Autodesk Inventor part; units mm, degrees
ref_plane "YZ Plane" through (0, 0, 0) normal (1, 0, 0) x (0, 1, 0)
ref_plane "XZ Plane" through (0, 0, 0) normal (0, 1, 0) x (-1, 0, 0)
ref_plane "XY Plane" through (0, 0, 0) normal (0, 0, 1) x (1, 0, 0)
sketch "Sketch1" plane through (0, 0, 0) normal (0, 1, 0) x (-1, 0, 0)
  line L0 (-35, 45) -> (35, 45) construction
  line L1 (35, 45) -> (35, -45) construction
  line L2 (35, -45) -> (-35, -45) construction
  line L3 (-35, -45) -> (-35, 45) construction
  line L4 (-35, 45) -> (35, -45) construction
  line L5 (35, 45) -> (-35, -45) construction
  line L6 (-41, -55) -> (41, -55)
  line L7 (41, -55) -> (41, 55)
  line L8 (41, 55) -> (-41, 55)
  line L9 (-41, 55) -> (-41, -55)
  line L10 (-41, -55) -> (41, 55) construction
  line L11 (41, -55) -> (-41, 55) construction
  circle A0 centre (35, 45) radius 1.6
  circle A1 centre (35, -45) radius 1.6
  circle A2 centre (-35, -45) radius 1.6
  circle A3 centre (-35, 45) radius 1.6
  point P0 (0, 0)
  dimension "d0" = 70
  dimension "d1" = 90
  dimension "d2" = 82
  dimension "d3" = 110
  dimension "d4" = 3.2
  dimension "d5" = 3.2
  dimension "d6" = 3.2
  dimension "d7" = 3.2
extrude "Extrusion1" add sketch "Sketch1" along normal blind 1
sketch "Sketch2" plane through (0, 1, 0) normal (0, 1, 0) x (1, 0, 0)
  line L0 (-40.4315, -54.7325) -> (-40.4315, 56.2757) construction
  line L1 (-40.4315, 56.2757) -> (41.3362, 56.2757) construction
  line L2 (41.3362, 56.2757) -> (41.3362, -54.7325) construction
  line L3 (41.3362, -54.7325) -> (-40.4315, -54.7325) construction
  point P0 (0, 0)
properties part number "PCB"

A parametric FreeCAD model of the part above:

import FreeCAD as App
import Part
import Sketcher


def add_polygon(sketch, points):
    """Adds a closed chain of lines whose ends are joined by coincident constraints."""
    first, n = sketch.GeometryCount, len(points)
    for a, b in zip(points, points[1:] + points[:1]):
        sketch.addGeometry(Part.LineSegment(App.Vector(*a, 0), App.Vector(*b, 0)), False)
    for i in range(n):
        sketch.addConstraint(Sketcher.Constraint("Coincident", first + i, 2, first + (i + 1) % n, 1))

doc = App.newDocument("Part")
params = doc.addObject("Spreadsheet::Sheet", "Params")
for row, (alias, value) in enumerate([
    ("sketch1_diameter", "3.2 mm"),
    ("sketch1_width", "82 mm"),
    ("sketch1_height", "110 mm"),
    ("pad1_length", "1 mm"),
], start=1):
    params.set(f"A{row}", alias)
    params.set(f"B{row}", "=" + value)
    params.setAlias(f"B{row}", alias)

body = doc.addObject("PartDesign::Body", "Body")

sketch1 = doc.addObject("Sketcher::SketchObject", "Sketch")
body.addObject(sketch1)
sketch1.AttachmentSupport = (doc.XZ_Plane, [""])
sketch1.MapMode = "FlatFace"
add_polygon(sketch1, [(41, 55), (41, -55), (-41, -55), (-41, 55)])
sketch1.addGeometry(Part.Circle(App.Vector(35, -45, 0), App.Vector(0, 0, 1), 1.6), False)
sketch1.addGeometry(Part.Circle(App.Vector(-35, -45, 0), App.Vector(0, 0, 1), 1.6), False)
sketch1.addGeometry(Part.Circle(App.Vector(35, 45, 0), App.Vector(0, 0, 1), 1.6), False)
sketch1.addGeometry(Part.Circle(App.Vector(-35, 45, 0), App.Vector(0, 0, 1), 1.6), False)
sketch1.addConstraint([
    Sketcher.Constraint("Vertical", 0),
    Sketcher.Constraint("Horizontal", 1),
    Sketcher.Constraint("Vertical", 2),
    Sketcher.Constraint("Horizontal", 3),
    Sketcher.Constraint("Equal", 4, 5),
    Sketcher.Constraint("Equal", 5, 6),
    Sketcher.Constraint("Equal", 6, 7),
    Sketcher.Constraint("Symmetric", 5, 3, 6, 3, -1, 1),
    Sketcher.Constraint("Symmetric", 4, 3, 7, 3, -1, 1),
    Sketcher.Constraint("Symmetric", 0, 2, 2, 2, -1, 1),
    Sketcher.Constraint("Symmetric", 4, 3, 5, 3, -2),
    Sketcher.Constraint("Diameter", 4, 3.2),
    Sketcher.Constraint("DistanceX", 1, 2, 1, 1, 82.0),
    Sketcher.Constraint("DistanceY", 0, 2, 0, 1, 110.0),
    Sketcher.Constraint("DistanceX", 5, 3, 4, 3, 70.0),
    Sketcher.Constraint("DistanceY", 4, 3, 6, 3, 90.0),
])
sketch1.setExpression("Constraints[15]", "Params.sketch1_diameter")
sketch1.setExpression("Constraints[16]", "Params.sketch1_width")
sketch1.setExpression("Constraints[17]", "Params.sketch1_height")
pad1 = doc.addObject("PartDesign::Pad", "Pad")
body.addObject(pad1)
pad1.Profile = sketch1
pad1.setExpression("Length", "Params.pad1_length")
pad1.Reversed = True

doc.recompute()
